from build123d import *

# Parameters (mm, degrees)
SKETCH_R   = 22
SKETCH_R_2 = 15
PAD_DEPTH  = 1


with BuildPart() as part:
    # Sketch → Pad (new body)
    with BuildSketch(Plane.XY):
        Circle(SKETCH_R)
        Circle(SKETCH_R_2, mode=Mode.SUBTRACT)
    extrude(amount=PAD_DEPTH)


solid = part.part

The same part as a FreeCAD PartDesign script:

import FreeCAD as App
import Part
import Sketcher
from FreeCAD import Vector
Q = App.Units.Quantity

doc = App.newDocument("Part")
body = doc.addObject("PartDesign::Body", "Body")

sketch1 = body.newObject("Sketcher::SketchObject", "Sketch")
sketch1.AttachmentSupport = (doc.getObject("XY_Plane"), [""])
sketch1.MapMode = "FlatFace"
sketch1.addGeometry([
    Part.Circle(Vector(0, 0, 0), Vector(0, 0, 1), 22),
    Part.Circle(Vector(0, 0, 0), Vector(0, 0, 1), 15),
], False)
sketch1.addConstraint([
    Sketcher.Constraint("Coincident", 0, 3, -1, 1),
    Sketcher.Constraint("Coincident", 1, 3, -1, 1),
    Sketcher.Constraint("Diameter", 0, Q("44 mm")),
    Sketcher.Constraint("Diameter", 1, Q("30 mm")),
])
pad1 = body.newObject("PartDesign::Pad", "Pad")
pad1.Profile = sketch1
pad1.Length = 1

doc.recompute()
